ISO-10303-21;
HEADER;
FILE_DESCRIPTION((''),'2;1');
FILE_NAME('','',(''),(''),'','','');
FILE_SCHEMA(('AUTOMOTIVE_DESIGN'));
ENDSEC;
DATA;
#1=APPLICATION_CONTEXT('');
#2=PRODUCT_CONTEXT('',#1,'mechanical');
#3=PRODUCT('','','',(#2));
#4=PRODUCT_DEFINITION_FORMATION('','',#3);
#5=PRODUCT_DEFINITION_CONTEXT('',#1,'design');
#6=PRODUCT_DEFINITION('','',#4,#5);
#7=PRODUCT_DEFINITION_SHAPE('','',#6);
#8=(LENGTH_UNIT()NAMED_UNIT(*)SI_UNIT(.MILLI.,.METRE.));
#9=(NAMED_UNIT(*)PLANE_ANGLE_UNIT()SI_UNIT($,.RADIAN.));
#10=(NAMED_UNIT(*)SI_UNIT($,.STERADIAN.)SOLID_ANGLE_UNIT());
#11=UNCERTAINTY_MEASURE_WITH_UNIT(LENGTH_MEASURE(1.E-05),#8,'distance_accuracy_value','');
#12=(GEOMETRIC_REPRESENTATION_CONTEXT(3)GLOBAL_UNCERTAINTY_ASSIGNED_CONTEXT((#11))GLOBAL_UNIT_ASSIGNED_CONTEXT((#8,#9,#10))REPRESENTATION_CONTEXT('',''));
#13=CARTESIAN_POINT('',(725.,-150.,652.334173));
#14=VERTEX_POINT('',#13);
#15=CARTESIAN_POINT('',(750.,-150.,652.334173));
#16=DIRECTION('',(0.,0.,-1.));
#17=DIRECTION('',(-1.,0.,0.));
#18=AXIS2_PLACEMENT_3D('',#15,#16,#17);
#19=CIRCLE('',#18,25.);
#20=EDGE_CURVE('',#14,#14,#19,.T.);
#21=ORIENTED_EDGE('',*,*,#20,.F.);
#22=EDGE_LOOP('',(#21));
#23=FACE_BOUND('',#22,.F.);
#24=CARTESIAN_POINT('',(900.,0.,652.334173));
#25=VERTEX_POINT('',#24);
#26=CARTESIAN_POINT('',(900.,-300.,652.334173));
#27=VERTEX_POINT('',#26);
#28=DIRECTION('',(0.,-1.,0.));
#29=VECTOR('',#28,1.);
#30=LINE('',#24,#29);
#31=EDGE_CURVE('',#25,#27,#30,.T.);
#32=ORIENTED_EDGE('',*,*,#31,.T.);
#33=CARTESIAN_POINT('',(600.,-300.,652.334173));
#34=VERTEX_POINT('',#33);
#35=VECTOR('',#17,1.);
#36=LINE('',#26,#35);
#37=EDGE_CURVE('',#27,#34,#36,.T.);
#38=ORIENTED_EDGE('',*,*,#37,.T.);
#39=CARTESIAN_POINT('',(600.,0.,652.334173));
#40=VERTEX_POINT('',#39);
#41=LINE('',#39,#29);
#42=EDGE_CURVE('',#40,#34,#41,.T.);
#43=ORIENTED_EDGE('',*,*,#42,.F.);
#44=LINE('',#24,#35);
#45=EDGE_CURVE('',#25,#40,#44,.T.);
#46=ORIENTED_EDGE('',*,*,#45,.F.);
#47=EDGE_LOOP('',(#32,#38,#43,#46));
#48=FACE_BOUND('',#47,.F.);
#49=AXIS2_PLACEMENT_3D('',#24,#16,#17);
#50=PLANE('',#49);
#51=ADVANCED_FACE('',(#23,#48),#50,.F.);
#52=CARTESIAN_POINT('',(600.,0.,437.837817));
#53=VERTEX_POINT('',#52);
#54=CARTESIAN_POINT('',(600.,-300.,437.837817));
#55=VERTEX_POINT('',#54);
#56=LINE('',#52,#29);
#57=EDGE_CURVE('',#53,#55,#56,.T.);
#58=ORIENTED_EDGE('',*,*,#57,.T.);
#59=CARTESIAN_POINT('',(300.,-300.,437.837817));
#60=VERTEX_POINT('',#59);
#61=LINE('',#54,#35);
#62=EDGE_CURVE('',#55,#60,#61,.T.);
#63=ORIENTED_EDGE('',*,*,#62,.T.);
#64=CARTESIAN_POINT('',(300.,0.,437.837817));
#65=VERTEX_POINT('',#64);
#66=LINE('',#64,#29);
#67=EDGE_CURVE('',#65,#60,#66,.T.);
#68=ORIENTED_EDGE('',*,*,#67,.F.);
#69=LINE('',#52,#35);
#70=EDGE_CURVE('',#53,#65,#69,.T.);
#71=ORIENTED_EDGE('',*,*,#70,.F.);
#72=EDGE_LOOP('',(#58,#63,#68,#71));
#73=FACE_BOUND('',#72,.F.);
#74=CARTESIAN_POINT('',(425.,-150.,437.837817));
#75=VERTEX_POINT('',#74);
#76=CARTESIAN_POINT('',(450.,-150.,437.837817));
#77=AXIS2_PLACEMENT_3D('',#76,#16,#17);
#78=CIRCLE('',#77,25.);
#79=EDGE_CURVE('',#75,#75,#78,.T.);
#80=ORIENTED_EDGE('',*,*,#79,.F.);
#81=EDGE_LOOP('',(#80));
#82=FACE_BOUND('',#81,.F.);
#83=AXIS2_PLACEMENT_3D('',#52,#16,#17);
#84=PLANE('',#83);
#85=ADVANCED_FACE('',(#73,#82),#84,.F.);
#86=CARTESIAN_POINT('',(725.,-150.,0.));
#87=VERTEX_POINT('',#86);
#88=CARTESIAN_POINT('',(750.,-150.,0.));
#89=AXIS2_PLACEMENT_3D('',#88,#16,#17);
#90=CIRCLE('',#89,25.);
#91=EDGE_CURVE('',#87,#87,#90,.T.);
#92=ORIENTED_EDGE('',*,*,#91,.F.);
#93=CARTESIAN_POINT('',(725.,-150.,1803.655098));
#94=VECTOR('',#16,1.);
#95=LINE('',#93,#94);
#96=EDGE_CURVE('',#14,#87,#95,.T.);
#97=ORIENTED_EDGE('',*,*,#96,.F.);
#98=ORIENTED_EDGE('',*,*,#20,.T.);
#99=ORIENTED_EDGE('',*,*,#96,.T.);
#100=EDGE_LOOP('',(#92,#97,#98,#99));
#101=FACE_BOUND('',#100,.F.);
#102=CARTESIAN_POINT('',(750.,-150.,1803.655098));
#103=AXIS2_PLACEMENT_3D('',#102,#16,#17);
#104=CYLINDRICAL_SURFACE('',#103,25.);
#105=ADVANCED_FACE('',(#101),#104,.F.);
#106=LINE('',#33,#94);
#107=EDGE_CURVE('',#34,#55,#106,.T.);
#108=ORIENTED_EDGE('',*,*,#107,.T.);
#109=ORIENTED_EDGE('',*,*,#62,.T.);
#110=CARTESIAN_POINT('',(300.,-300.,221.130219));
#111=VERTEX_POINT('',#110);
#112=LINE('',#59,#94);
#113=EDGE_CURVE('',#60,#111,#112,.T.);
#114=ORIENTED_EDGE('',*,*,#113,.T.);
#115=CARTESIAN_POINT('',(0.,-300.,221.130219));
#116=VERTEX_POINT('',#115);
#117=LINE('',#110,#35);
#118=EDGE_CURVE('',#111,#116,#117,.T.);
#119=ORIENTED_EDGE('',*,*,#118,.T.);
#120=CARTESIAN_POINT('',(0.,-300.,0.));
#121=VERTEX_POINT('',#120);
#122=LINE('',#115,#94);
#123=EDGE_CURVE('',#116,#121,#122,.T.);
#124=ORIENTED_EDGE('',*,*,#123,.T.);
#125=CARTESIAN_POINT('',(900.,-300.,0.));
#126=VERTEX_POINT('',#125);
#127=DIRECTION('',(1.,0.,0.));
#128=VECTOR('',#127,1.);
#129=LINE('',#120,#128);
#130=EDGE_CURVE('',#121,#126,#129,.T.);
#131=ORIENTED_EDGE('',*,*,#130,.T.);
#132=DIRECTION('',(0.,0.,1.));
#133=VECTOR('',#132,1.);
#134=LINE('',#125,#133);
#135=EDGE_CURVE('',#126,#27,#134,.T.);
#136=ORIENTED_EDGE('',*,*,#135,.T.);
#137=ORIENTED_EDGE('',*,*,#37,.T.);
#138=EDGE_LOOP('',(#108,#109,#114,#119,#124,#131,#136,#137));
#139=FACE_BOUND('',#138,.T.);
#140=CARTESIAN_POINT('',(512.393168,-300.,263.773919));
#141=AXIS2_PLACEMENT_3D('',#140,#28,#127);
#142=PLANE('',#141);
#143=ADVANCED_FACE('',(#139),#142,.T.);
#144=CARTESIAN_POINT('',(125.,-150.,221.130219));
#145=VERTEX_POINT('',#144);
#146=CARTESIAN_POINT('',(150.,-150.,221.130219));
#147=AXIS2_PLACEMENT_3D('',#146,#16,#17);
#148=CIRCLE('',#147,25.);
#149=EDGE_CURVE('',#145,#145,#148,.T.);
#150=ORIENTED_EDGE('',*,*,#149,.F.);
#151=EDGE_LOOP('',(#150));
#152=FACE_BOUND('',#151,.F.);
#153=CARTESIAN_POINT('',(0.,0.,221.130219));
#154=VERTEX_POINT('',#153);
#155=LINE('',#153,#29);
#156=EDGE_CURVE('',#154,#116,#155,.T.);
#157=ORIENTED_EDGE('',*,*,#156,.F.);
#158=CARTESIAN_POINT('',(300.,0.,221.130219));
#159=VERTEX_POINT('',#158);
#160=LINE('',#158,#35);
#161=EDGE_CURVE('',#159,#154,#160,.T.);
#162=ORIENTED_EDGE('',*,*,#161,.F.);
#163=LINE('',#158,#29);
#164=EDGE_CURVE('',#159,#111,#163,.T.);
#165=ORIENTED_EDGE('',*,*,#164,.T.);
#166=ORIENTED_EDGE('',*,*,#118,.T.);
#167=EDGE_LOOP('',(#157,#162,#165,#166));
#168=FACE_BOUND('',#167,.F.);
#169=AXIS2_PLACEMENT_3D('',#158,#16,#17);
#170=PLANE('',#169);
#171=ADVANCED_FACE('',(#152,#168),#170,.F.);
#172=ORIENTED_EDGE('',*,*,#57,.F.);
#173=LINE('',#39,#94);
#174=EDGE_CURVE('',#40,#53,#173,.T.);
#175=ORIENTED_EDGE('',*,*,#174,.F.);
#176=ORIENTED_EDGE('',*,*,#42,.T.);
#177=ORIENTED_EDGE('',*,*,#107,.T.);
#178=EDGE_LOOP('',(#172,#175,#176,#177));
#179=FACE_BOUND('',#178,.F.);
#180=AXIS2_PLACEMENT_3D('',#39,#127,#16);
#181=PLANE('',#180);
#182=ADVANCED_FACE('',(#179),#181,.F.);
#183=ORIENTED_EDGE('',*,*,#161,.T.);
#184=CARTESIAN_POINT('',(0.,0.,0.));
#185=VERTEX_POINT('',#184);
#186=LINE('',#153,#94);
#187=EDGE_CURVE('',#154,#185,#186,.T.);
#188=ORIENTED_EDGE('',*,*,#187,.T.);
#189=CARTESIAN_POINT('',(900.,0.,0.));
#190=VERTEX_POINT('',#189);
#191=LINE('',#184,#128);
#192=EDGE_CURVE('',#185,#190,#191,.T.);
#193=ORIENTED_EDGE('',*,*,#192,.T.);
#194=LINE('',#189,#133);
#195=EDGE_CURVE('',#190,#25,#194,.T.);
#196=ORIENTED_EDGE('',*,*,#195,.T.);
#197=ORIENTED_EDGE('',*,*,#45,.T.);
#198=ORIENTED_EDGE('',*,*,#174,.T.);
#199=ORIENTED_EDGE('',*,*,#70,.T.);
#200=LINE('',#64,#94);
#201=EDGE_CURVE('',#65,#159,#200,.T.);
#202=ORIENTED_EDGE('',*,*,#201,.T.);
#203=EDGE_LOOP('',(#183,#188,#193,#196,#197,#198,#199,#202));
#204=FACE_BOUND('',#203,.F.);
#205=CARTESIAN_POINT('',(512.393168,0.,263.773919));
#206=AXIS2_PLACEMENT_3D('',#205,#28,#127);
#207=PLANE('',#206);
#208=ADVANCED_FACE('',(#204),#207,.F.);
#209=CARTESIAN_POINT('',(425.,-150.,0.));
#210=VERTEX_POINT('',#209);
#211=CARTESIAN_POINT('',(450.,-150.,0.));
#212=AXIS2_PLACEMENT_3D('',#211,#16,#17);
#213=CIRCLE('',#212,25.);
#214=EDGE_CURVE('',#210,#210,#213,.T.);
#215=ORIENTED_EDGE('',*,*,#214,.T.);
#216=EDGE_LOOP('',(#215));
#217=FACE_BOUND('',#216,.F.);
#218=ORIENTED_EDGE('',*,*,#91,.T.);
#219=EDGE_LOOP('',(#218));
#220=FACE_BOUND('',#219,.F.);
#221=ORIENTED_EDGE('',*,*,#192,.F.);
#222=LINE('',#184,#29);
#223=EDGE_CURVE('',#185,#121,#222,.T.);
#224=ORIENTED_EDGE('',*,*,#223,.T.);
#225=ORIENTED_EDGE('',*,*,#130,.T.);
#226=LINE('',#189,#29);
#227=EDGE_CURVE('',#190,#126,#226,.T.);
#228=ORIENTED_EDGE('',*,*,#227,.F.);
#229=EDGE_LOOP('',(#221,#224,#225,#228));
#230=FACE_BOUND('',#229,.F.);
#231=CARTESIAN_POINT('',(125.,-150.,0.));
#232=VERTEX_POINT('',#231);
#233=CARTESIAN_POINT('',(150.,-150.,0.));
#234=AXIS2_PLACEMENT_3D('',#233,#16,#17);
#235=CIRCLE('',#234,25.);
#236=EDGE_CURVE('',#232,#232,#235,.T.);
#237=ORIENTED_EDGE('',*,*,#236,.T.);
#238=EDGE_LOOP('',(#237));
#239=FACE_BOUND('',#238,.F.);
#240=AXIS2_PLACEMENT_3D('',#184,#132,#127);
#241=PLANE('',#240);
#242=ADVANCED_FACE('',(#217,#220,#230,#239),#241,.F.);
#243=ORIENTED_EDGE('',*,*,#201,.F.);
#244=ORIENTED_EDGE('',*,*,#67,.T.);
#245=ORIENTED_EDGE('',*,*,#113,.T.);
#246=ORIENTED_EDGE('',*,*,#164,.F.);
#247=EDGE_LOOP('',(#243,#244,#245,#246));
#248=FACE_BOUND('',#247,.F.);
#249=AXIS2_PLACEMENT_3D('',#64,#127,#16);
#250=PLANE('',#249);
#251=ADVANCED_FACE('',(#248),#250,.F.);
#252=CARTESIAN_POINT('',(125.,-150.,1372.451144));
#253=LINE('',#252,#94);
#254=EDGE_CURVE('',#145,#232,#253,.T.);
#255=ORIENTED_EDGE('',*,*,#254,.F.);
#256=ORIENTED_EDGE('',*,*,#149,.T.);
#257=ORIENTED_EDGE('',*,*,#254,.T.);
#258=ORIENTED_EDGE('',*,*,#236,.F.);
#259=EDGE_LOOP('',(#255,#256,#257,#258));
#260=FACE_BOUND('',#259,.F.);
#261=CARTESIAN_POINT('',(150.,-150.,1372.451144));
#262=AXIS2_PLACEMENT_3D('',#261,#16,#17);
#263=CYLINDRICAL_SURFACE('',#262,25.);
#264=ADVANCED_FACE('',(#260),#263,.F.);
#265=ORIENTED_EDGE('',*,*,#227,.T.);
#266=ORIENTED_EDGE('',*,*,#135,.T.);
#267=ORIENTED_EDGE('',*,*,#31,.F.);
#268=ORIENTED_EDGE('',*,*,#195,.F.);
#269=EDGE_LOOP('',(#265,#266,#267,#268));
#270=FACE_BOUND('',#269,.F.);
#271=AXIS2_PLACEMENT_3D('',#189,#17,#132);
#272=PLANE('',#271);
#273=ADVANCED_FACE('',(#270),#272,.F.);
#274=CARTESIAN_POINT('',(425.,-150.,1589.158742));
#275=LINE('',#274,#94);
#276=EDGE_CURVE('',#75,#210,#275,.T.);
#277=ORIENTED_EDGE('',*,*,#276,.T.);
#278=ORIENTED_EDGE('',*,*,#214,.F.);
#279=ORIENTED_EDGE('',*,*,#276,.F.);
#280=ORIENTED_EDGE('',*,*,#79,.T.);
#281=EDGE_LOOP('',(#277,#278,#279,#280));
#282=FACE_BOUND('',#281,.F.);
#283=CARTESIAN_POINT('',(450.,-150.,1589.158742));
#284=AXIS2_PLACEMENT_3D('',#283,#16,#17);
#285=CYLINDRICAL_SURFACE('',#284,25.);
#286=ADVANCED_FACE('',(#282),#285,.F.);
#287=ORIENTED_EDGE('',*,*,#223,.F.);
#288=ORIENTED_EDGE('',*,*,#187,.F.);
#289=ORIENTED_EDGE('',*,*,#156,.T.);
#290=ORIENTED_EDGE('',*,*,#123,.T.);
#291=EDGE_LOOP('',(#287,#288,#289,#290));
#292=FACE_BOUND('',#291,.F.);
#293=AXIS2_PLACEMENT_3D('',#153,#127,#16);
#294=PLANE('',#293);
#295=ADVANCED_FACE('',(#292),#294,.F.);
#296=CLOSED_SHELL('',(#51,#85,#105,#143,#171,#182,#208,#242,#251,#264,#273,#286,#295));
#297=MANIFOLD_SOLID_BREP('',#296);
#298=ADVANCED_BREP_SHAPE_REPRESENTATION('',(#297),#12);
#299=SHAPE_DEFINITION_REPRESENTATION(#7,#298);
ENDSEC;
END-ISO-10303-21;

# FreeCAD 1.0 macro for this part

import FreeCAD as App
import Part
import Sketcher
from FreeCAD import Vector


def add_polygon(sketch, points):
    """Adds a closed chain of lines whose ends are joined by coincident constraints."""
    first, n = sketch.GeometryCount, len(points)
    for a, b in zip(points, points[1:] + points[:1]):
        sketch.addGeometry(Part.LineSegment(App.Vector(*a, 0), App.Vector(*b, 0)), False)
    for i in range(n):
        sketch.addConstraint(Sketcher.Constraint("Coincident", first + i, 2, first + (i + 1) % n, 1))

doc = App.newDocument("Part")
body = doc.addObject("PartDesign::Body", "Body")

# Sketch on XZ plane
sketch1 = body.newObject("Sketcher::SketchObject", "Sketch")
sketch1.AttachmentSupport = (doc.getObject("XZ_Plane"), [""])
sketch1.MapMode = "FlatFace"
add_polygon(sketch1, [(0, 221), (0, 0), (900, 0), (900, 652), (600, 652), (600, 438), (300, 438), (300, 221)])  # lines 0-7
sketch1.addConstraint([
    Sketcher.Constraint("Vertical", 0),
    Sketcher.Constraint("Horizontal", 1),
    Sketcher.Constraint("Vertical", 2),
    Sketcher.Constraint("Horizontal", 3),
    Sketcher.Constraint("Vertical", 4),
    Sketcher.Constraint("Horizontal", 5),
    Sketcher.Constraint("Vertical", 6),
    Sketcher.Constraint("Horizontal", 7),
    Sketcher.Constraint("Coincident", 0, 2, -1, 1),
    Sketcher.Constraint("Equal", 3, 5),
    Sketcher.Constraint("Equal", 5, 7),
    Sketcher.Constraint("DistanceX", 1, 1, 1, 2, 900.0),
    Sketcher.Constraint("DistanceY", 0, 2, 0, 1, 221.130219),
    Sketcher.Constraint("DistanceY", 2, 1, 2, 2, 652.334173),
    Sketcher.Constraint("DistanceY", 4, 2, 4, 1, 214.496356),
])
pad1 = body.newObject("PartDesign::Pad", "Pad")
pad1.Profile = sketch1
pad1.Length = 300

# Sketch on XY plane
sketch2 = body.newObject("Sketcher::SketchObject", "Sketch001")
sketch2.AttachmentSupport = (doc.getObject("XY_Plane"), [""])
sketch2.MapMode = "FlatFace"
sketch2.AttachmentOffset = App.Placement(Vector(0, 0, 437.837817), App.Rotation())
sketch2.addGeometry(Part.Circle(Vector(450, -150, 0), Vector(0, 0, 1), 25), False)
sketch2.addConstraint([
    Sketcher.Constraint("Diameter", 0, 50.0),
    Sketcher.Constraint("DistanceX", -1, 1, 0, 3, 450.0),
    Sketcher.Constraint("DistanceY", 0, 3, -1, 1, 150.0),
])
doc.recompute()
hole = body.newObject("PartDesign::Hole", "Hole")
hole.Profile = sketch2
hole.ThreadType = "None"
hole.Diameter = 50
hole.DepthType = "ThroughAll"

# Sketch on XY plane
sketch3 = body.newObject("Sketcher::SketchObject", "Sketch002")
sketch3.AttachmentSupport = (doc.getObject("XY_Plane"), [""])
sketch3.MapMode = "FlatFace"
sketch3.AttachmentOffset = App.Placement(Vector(0, 0, 221.130219), App.Rotation())
sketch3.addGeometry(Part.Circle(Vector(150, -150, 0), Vector(0, 0, 1), 25), False)
sketch3.addConstraint([
    Sketcher.Constraint("Diameter", 0, 50.0),
    Sketcher.Constraint("DistanceX", -1, 1, 0, 3, 150.0),
    Sketcher.Constraint("DistanceY", 0, 3, -1, 1, 150.0),
])
doc.recompute()
hole2 = body.newObject("PartDesign::Hole", "Hole001")
hole2.Profile = sketch3
hole2.ThreadType = "None"
hole2.Diameter = 50
hole2.DepthType = "ThroughAll"

# Sketch on XY plane
sketch4 = body.newObject("Sketcher::SketchObject", "Sketch003")
sketch4.AttachmentSupport = (doc.getObject("XY_Plane"), [""])
sketch4.MapMode = "FlatFace"
sketch4.AttachmentOffset = App.Placement(Vector(0, 0, 652.334173), App.Rotation())
sketch4.addGeometry(Part.Circle(Vector(750, -150, 0), Vector(0, 0, 1), 25), False)
sketch4.addConstraint([
    Sketcher.Constraint("Diameter", 0, 50.0),
    Sketcher.Constraint("DistanceX", -1, 1, 0, 3, 750.0),
    Sketcher.Constraint("DistanceY", 0, 3, -1, 1, 150.0),
])
doc.recompute()
hole3 = body.newObject("PartDesign::Hole", "Hole002")
hole3.Profile = sketch4
hole3.ThreadType = "None"
hole3.Diameter = 50
hole3.DepthType = "ThroughAll"

doc.recompute()
